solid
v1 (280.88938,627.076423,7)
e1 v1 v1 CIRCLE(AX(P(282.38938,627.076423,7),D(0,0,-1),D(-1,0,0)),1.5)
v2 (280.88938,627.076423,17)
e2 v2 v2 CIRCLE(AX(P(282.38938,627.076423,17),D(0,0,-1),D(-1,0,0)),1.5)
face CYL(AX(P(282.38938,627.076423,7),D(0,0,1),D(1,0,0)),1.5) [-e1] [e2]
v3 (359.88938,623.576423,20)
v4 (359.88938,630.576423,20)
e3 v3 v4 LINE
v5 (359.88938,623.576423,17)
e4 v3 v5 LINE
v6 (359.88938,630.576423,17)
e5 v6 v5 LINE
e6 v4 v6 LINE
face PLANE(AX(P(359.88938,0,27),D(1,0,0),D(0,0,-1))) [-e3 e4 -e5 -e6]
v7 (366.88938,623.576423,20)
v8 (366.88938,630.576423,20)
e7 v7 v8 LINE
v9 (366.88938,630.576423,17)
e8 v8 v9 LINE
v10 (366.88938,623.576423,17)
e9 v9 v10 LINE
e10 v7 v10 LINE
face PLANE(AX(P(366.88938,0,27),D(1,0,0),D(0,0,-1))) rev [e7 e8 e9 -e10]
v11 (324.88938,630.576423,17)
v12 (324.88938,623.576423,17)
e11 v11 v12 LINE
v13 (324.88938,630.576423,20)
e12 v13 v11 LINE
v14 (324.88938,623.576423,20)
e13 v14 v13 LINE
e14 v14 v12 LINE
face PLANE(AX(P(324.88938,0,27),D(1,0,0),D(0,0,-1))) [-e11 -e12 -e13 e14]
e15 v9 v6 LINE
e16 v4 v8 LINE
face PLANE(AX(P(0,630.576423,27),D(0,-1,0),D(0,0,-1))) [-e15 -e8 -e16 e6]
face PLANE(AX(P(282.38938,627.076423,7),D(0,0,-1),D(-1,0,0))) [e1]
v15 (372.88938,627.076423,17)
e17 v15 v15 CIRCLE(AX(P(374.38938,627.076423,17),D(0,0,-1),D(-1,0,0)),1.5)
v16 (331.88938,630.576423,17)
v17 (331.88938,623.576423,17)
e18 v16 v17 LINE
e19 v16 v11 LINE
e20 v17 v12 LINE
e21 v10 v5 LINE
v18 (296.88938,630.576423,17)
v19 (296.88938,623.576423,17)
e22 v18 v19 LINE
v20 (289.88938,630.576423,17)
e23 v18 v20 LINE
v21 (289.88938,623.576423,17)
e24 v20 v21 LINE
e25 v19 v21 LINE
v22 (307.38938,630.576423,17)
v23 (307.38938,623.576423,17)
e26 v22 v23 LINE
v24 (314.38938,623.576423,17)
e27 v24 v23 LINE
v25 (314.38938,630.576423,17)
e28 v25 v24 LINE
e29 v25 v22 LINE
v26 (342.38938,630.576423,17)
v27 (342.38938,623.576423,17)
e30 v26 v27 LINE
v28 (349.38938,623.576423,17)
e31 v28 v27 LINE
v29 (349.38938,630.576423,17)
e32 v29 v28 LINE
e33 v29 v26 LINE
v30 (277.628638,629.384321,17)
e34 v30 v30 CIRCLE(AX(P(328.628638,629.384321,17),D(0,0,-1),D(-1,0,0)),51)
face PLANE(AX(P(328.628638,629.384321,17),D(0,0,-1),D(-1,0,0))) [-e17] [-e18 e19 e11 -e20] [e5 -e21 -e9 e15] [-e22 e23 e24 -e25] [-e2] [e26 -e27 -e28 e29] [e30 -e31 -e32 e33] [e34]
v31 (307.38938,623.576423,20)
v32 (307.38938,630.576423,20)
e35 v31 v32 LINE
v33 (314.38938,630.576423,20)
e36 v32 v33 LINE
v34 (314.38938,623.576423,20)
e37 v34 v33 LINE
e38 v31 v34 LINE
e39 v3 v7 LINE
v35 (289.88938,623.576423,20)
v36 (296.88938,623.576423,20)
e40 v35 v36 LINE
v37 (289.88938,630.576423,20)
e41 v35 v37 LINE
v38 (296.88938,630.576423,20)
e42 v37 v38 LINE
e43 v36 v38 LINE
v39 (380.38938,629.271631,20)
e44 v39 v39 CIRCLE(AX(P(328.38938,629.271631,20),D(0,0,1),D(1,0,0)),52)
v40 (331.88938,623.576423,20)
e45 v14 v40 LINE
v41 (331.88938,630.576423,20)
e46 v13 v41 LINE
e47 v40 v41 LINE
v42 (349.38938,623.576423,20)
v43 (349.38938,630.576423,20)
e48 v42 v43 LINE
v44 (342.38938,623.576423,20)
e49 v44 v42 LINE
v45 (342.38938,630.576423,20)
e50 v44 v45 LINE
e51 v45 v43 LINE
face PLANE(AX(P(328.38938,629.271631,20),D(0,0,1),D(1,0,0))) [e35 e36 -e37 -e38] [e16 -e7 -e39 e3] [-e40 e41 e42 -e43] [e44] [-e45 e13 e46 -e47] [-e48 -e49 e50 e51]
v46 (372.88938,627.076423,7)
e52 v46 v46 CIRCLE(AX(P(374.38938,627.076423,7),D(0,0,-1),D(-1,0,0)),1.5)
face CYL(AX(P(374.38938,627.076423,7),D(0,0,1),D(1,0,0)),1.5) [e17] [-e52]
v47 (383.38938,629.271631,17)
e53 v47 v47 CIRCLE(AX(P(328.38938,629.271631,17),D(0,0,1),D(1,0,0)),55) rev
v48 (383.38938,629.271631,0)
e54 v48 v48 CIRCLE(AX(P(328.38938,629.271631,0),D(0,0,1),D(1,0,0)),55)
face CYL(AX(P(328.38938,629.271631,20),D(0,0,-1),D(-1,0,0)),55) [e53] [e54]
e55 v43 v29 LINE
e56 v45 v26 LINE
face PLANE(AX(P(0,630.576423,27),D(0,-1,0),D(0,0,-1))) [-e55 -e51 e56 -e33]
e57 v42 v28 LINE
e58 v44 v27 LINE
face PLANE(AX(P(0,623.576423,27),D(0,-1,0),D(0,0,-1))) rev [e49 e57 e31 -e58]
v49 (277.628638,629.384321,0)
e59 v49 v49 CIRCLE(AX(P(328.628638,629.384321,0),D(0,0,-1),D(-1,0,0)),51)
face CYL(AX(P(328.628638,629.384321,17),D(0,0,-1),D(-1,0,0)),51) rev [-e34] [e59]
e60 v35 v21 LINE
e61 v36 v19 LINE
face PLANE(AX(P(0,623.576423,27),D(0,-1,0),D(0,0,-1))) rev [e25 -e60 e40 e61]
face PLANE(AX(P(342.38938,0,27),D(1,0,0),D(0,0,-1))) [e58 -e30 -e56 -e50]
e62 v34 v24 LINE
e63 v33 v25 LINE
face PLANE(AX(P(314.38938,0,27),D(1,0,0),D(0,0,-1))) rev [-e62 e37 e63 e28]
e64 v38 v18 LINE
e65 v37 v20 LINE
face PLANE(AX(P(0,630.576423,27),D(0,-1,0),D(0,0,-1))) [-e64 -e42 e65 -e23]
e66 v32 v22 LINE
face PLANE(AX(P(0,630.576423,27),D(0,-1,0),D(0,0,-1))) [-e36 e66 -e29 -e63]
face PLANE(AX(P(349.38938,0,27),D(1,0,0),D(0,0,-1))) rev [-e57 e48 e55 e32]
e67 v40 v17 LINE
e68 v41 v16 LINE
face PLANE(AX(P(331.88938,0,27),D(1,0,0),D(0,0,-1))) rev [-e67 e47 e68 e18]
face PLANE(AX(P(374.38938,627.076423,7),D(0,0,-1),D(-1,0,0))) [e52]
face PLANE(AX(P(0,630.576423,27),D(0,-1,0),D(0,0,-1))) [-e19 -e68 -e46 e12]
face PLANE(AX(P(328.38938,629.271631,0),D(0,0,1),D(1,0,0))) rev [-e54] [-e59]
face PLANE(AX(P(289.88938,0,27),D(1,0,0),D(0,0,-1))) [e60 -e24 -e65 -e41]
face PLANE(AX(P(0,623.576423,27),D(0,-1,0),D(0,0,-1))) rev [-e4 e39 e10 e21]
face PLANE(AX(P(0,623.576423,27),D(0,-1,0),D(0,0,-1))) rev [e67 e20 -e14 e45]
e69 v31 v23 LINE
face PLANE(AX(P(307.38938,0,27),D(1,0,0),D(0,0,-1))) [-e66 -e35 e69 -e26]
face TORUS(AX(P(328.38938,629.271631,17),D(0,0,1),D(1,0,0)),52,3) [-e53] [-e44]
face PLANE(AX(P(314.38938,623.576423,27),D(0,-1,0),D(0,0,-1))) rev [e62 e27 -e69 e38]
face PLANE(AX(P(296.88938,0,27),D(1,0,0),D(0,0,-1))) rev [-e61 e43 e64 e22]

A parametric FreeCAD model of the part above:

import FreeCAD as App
import Part
import Sketcher


def edges_at(feature, points):
    """Names of the edges that pass closest to the given points."""
    edges = feature.Shape.Edges
    near = lambda p: min(range(len(edges)), key=lambda i: edges[i].distToShape(Part.Vertex(*p))[0])
    return sorted({f"Edge{near(p) + 1}" for p in points})

doc = App.newDocument("Part")
params = doc.addObject("Spreadsheet::Sheet", "Params")
for row, (alias, value) in enumerate([
    ("sketch1_diameter", "110 mm"),
    ("pad1_length", "20 mm"),
    ("sketch2_diameter", "102 mm"),
    ("pocket1_length", "17 mm"),
    ("sketch3_diameter", "3 mm"),
    ("pad2_length", "10 mm"),
    ("sketch4_width", "7 mm"),
    ("pocket2_length", "10 mm"),
    ("fillet_radius", "3 mm"),
], start=1):
    params.set(f"A{row}", alias)
    params.set(f"B{row}", "=" + value)
    params.setAlias(f"B{row}", alias)

body = doc.addObject("PartDesign::Body", "Body")

# Sketch on XY plane
sketch1 = body.newObject("Sketcher::SketchObject", "Sketch")
sketch1.AttachmentSupport = (doc.getObject("XY_Plane"), [""])
sketch1.MapMode = "FlatFace"
sketch1.addGeometry(Part.Circle(App.Vector(328.38938, 629.271631, 0), App.Vector(0, 0, 1), 55), False)
sketch1.addConstraint([
    Sketcher.Constraint("Diameter", 0, 110.0),
    Sketcher.Constraint("DistanceX", -1, 1, 0, 3, 328.38938),
    Sketcher.Constraint("DistanceY", -1, 1, 0, 3, 629.271631),
])
sketch1.setExpression("Constraints[0]", "Params.sketch1_diameter")
pad1 = body.newObject("PartDesign::Pad", "Pad")
pad1.Profile = sketch1
pad1.setExpression("Length", "Params.pad1_length")

# Sketch on XY plane
sketch2 = body.newObject("Sketcher::SketchObject", "Sketch001")
sketch2.AttachmentSupport = (doc.getObject("XY_Plane"), [""])
sketch2.MapMode = "FlatFace"
sketch2.addGeometry(Part.Circle(App.Vector(328.628638, 629.384321, 0), App.Vector(0, 0, 1), 51), False)
sketch2.addConstraint([
    Sketcher.Constraint("Diameter", 0, 102.0),
    Sketcher.Constraint("DistanceY", -1, 1, 0, 3, 629.384321),
    Sketcher.Constraint("DistanceX", -1, 1, 0, 3, 328.628638),
])
sketch2.setExpression("Constraints[0]", "Params.sketch2_diameter")
pocket1 = body.newObject("PartDesign::Pocket", "Pocket")
pocket1.Profile = sketch2
pocket1.setExpression("Length", "Params.pocket1_length")
pocket1.Reversed = True

# Sketch on XY plane
sketch3 = body.newObject("Sketcher::SketchObject", "Sketch002")
sketch3.AttachmentSupport = (doc.getObject("XY_Plane"), [""])
sketch3.MapMode = "FlatFace"
sketch3.AttachmentOffset = App.Placement(App.Vector(0, 0, 17), App.Rotation())
sketch3.addGeometry([
    Part.Circle(App.Vector(374.38938, 627.076423, 0), App.Vector(0, 0, 1), 1.5),
    Part.Circle(App.Vector(282.38938, 627.076423, 0), App.Vector(0, 0, 1), 1.5),
], False)
sketch3.addConstraint([
    Sketcher.Constraint("Equal", 0, 1),
    Sketcher.Constraint("Horizontal", 0, 3, 1, 3),
    Sketcher.Constraint("Diameter", 0, 3.0),
    Sketcher.Constraint("DistanceX", 1, 3, 0, 3, 92.0),
    Sketcher.Constraint("DistanceX", -1, 1, 0, 3, 374.38938),
    Sketcher.Constraint("DistanceY", -1, 1, 0, 3, 627.076423),
])
sketch3.setExpression("Constraints[2]", "Params.sketch3_diameter")
pad2 = body.newObject("PartDesign::Pad", "Pad001")
pad2.Profile = sketch3
pad2.setExpression("Length", "Params.pad2_length")
pad2.Reversed = True

# Sketch on XY plane
sketch4 = body.newObject("Sketcher::SketchObject", "Sketch003")
sketch4.AttachmentSupport = (doc.getObject("XY_Plane"), [""])
sketch4.MapMode = "FlatFace"
sketch4.AttachmentOffset = App.Placement(App.Vector(0, 0, 17), App.Rotation())
sketch4.addGeometry([
    Part.LineSegment(App.Vector(331.88938, 630.576423, 0), App.Vector(331.88938, 623.576423, 0)),  # 0
    Part.LineSegment(App.Vector(331.88938, 623.576423, 0), App.Vector(324.88938, 623.576423, 0)),  # 1
    Part.LineSegment(App.Vector(324.88938, 623.576423, 0), App.Vector(324.88938, 630.576423, 0)),  # 2
    Part.LineSegment(App.Vector(324.88938, 630.576423, 0), App.Vector(331.88938, 630.576423, 0)),  # 3
    Part.LineSegment(App.Vector(314.38938, 630.576423, 0), App.Vector(314.38938, 623.576423, 0)),  # 4
    Part.LineSegment(App.Vector(314.38938, 623.576423, 0), App.Vector(307.38938, 623.576423, 0)),  # 5
    Part.LineSegment(App.Vector(307.38938, 623.576423, 0), App.Vector(307.38938, 630.576423, 0)),  # 6
    Part.LineSegment(App.Vector(307.38938, 630.576423, 0), App.Vector(314.38938, 630.576423, 0)),  # 7
    Part.LineSegment(App.Vector(296.88938, 630.576423, 0), App.Vector(296.88938, 623.576423, 0)),  # 8
    Part.LineSegment(App.Vector(296.88938, 623.576423, 0), App.Vector(289.88938, 623.576423, 0)),  # 9
    Part.LineSegment(App.Vector(289.88938, 623.576423, 0), App.Vector(289.88938, 630.576423, 0)),  # 10
    Part.LineSegment(App.Vector(289.88938, 630.576423, 0), App.Vector(296.88938, 630.576423, 0)),  # 11
    Part.LineSegment(App.Vector(349.38938, 630.576423, 0), App.Vector(349.38938, 623.576423, 0)),  # 12
    Part.LineSegment(App.Vector(349.38938, 623.576423, 0), App.Vector(342.38938, 623.576423, 0)),  # 13
    Part.LineSegment(App.Vector(342.38938, 623.576423, 0), App.Vector(342.38938, 630.576423, 0)),  # 14
    Part.LineSegment(App.Vector(342.38938, 630.576423, 0), App.Vector(349.38938, 630.576423, 0)),  # 15
    Part.LineSegment(App.Vector(366.88938, 630.576423, 0), App.Vector(366.88938, 623.576423, 0)),  # 16
    Part.LineSegment(App.Vector(366.88938, 623.576423, 0), App.Vector(359.88938, 623.576423, 0)),  # 17
    Part.LineSegment(App.Vector(359.88938, 623.576423, 0), App.Vector(359.88938, 630.576423, 0)),  # 18
    Part.LineSegment(App.Vector(359.88938, 630.576423, 0), App.Vector(366.88938, 630.576423, 0)),  # 19
], False)
sketch4.addConstraint([
    Sketcher.Constraint("Coincident", 0, 2, 1, 1),
    Sketcher.Constraint("Coincident", 1, 2, 2, 1),
    Sketcher.Constraint("Coincident", 2, 2, 3, 1),
    Sketcher.Constraint("Coincident", 3, 2, 0, 1),
    Sketcher.Constraint("Coincident", 4, 2, 5, 1),
    Sketcher.Constraint("Coincident", 5, 2, 6, 1),
    Sketcher.Constraint("Coincident", 6, 2, 7, 1),
    Sketcher.Constraint("Coincident", 7, 2, 4, 1),
    Sketcher.Constraint("Coincident", 8, 2, 9, 1),
    Sketcher.Constraint("Coincident", 9, 2, 10, 1),
    Sketcher.Constraint("Coincident", 10, 2, 11, 1),
    Sketcher.Constraint("Coincident", 11, 2, 8, 1),
    Sketcher.Constraint("Coincident", 12, 2, 13, 1),
    Sketcher.Constraint("Coincident", 13, 2, 14, 1),
    Sketcher.Constraint("Coincident", 14, 2, 15, 1),
    Sketcher.Constraint("Coincident", 15, 2, 12, 1),
    Sketcher.Constraint("Coincident", 16, 2, 17, 1),
    Sketcher.Constraint("Coincident", 17, 2, 18, 1),
    Sketcher.Constraint("Coincident", 18, 2, 19, 1),
    Sketcher.Constraint("Coincident", 19, 2, 16, 1),
    Sketcher.Constraint("Vertical", 0),
    Sketcher.Constraint("Horizontal", 1),
    Sketcher.Constraint("Vertical", 2),
    Sketcher.Constraint("Horizontal", 3),
    Sketcher.Constraint("Vertical", 4),
    Sketcher.Constraint("Horizontal", 5),
    Sketcher.Constraint("Vertical", 6),
    Sketcher.Constraint("Horizontal", 7),
    Sketcher.Constraint("Vertical", 8),
    Sketcher.Constraint("Horizontal", 9),
    Sketcher.Constraint("Vertical", 10),
    Sketcher.Constraint("Horizontal", 11),
    Sketcher.Constraint("Vertical", 12),
    Sketcher.Constraint("Horizontal", 13),
    Sketcher.Constraint("Vertical", 14),
    Sketcher.Constraint("Horizontal", 15),
    Sketcher.Constraint("Vertical", 16),
    Sketcher.Constraint("Horizontal", 17),
    Sketcher.Constraint("Vertical", 18),
    Sketcher.Constraint("Horizontal", 19),
    Sketcher.Constraint("Horizontal", 1, 2, 4, 2),
    Sketcher.Constraint("Horizontal", 3, 2, 6, 2),
    Sketcher.Constraint("Horizontal", 5, 2, 8, 2),
    Sketcher.Constraint("Horizontal", 7, 2, 10, 2),
    Sketcher.Constraint("Horizontal", 9, 2, 12, 2),
    Sketcher.Constraint("Horizontal", 11, 2, 14, 2),
    Sketcher.Constraint("Horizontal", 13, 2, 16, 2),
    Sketcher.Constraint("Horizontal", 15, 2, 18, 2),
    Sketcher.Constraint("Equal", 3, 5),
    Sketcher.Constraint("Equal", 7, 9),
    Sketcher.Constraint("Equal", 11, 13),
    Sketcher.Constraint("Equal", 15, 17),
    Sketcher.Constraint("Equal", 19, 0),
    Sketcher.Constraint("DistanceX", 1, 2, 1, 1, 7.0),
    Sketcher.Constraint("DistanceX", 8, 2, 1, 2, 28.0),
    Sketcher.Constraint("DistanceX", 4, 2, 12, 2, 35.0),
    Sketcher.Constraint("DistanceX", 0, 2, 16, 2, 35.0),
    Sketcher.Constraint("DistanceX", 4, 2, 1, 2, 10.5),
    Sketcher.Constraint("DistanceX", -1, 1, 0, 2, 331.88938),
    Sketcher.Constraint("DistanceY", -1, 1, 0, 2, 623.576423),
])
sketch4.setExpression("Constraints[53]", "Params.sketch4_width")
pocket2 = body.newObject("PartDesign::Pocket", "Pocket001")
pocket2.Profile = sketch4
pocket2.setExpression("Length", "Params.pocket2_length")
pocket2.Reversed = True
doc.recompute()

fillet = body.newObject("PartDesign::Fillet", "Fillet")
fillet.Base = (pocket2, edges_at(pocket2, [(273.389, 629.272, 20)]))
fillet.setExpression("Radius", "Params.fillet_radius")

doc.recompute()
